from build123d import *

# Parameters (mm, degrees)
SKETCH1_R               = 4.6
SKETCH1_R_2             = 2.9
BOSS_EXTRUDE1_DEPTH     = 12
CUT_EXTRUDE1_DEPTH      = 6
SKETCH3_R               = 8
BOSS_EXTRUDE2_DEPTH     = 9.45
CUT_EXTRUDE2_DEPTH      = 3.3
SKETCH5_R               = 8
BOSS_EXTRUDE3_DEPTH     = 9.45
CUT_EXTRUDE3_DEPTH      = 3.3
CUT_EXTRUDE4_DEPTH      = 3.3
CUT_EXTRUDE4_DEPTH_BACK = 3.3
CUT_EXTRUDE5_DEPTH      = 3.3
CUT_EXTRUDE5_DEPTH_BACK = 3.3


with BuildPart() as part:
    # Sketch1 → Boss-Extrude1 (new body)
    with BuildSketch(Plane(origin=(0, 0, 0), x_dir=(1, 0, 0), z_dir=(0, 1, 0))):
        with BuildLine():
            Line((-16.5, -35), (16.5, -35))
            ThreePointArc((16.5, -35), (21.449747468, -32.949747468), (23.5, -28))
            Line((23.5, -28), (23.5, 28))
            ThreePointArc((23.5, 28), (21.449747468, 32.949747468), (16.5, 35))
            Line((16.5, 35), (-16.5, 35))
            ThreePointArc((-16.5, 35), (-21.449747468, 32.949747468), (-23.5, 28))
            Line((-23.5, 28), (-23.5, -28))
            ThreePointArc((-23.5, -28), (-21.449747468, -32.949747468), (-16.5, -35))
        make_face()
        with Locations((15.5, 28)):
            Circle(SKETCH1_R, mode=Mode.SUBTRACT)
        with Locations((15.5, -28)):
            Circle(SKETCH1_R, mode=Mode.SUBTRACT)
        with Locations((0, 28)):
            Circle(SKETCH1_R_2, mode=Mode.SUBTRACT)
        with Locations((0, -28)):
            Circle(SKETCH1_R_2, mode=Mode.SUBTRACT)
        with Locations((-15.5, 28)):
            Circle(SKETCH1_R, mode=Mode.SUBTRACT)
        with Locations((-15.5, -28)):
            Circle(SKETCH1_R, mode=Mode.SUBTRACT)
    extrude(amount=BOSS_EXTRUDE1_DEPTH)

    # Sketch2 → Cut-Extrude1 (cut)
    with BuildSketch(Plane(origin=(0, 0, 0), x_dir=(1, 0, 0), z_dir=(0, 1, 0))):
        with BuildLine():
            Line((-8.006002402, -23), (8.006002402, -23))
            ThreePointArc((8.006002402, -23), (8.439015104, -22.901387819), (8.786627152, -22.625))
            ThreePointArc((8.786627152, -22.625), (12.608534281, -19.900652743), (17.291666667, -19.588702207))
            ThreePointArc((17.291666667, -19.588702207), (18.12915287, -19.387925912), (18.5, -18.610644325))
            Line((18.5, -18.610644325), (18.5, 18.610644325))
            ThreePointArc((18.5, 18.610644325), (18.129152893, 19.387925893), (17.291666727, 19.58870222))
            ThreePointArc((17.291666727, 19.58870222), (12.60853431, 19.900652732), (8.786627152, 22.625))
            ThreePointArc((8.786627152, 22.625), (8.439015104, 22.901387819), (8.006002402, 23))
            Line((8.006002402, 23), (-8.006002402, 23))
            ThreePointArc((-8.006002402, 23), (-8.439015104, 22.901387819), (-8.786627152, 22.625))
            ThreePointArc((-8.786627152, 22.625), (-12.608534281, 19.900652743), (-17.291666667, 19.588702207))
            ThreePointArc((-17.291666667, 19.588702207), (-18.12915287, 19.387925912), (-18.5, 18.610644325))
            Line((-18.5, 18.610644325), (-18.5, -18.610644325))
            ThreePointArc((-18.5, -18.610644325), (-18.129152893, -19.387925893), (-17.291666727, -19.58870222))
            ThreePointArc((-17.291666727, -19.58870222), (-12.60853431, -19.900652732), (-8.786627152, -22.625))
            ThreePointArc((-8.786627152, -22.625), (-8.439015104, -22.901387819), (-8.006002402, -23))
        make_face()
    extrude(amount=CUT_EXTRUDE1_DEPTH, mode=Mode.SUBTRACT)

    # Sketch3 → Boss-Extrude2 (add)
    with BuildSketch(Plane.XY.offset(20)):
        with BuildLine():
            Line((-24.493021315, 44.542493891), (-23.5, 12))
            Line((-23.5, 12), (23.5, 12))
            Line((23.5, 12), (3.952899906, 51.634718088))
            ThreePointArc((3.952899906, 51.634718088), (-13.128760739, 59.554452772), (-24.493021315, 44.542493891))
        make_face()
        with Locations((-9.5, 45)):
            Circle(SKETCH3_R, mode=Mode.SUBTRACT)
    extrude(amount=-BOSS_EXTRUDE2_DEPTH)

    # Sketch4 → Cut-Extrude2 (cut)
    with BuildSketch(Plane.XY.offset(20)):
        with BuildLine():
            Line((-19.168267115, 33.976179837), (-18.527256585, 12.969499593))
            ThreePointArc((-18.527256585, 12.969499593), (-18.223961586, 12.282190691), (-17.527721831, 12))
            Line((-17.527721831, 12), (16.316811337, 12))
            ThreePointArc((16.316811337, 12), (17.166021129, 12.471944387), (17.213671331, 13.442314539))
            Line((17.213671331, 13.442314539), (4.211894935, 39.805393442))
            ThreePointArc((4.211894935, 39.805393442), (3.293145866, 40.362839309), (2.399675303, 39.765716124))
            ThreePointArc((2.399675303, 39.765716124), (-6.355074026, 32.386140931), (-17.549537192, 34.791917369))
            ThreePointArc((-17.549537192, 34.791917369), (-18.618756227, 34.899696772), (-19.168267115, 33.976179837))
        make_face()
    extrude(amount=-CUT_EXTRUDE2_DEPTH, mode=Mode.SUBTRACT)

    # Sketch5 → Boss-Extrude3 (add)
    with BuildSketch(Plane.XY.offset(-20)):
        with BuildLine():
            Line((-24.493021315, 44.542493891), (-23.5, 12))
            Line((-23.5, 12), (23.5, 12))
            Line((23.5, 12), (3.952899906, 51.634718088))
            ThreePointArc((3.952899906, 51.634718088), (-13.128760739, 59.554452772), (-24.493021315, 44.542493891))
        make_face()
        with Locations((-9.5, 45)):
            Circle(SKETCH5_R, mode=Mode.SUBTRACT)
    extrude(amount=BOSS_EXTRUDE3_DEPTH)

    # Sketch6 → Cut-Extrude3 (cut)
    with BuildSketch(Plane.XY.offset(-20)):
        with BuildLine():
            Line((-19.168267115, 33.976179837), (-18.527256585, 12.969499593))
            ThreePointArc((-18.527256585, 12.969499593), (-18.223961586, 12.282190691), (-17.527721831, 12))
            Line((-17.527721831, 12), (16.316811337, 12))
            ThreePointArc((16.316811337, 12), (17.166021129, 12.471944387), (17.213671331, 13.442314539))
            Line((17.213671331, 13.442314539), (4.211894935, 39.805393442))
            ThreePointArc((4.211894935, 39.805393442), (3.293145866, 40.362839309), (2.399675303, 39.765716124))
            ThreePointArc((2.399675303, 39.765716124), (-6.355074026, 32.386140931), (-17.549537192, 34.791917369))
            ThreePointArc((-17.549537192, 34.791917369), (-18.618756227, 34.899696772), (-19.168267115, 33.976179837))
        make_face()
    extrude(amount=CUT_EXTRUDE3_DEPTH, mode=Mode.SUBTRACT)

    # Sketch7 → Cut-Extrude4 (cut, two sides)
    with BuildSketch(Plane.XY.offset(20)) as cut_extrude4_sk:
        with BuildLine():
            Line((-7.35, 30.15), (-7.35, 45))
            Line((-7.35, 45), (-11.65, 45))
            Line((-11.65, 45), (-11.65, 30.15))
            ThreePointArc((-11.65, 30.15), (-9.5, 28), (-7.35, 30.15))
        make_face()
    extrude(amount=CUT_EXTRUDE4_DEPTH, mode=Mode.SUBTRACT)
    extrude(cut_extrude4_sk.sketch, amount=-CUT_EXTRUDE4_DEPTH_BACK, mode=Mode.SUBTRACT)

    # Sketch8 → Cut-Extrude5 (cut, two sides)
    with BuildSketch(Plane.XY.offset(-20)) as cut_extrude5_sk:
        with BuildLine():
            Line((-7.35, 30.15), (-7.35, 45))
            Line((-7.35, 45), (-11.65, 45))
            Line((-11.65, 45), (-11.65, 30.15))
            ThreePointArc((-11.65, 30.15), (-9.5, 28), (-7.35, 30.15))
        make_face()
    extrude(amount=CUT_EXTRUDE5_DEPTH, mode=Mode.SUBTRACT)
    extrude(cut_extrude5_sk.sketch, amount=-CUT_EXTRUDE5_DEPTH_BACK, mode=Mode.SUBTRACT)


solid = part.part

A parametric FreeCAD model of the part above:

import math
import FreeCAD as App
import Part
import Sketcher
Q = App.Units.Quantity

doc = App.newDocument("Part")
body = doc.addObject("PartDesign::Body", "Body")

# Sketch on XZ plane
sketch1 = body.newObject("Sketcher::SketchObject", "Sketch")
sketch1.AttachmentSupport = (doc.getObject("XZ_Plane"), [""])
sketch1.MapMode = "FlatFace"
sketch1.addGeometry([
    Part.LineSegment(App.Vector(-16.5, 35, 0), App.Vector(16.5, 35, 0)),  # 0
    Part.ArcOfCircle(Part.Circle(App.Vector(16.5, 28, 0), App.Vector(0, 0, 1), 7), math.radians(0), math.radians(90)),  # 1
    Part.LineSegment(App.Vector(23.5, 28, 0), App.Vector(23.5, -28, 0)),  # 2
    Part.ArcOfCircle(Part.Circle(App.Vector(16.5, -28, 0), App.Vector(0, 0, 1), 7), math.radians(-90), math.radians(0)),  # 3
    Part.LineSegment(App.Vector(16.5, -35, 0), App.Vector(-16.5, -35, 0)),  # 4
    Part.ArcOfCircle(Part.Circle(App.Vector(-16.5, -28, 0), App.Vector(0, 0, 1), 7), math.radians(-180), math.radians(-90)),  # 5
    Part.LineSegment(App.Vector(-23.5, -28, 0), App.Vector(-23.5, 28, 0)),  # 6
    Part.ArcOfCircle(Part.Circle(App.Vector(-16.5, 28, 0), App.Vector(0, 0, 1), 7), math.radians(90), math.radians(180)),  # 7
    Part.Circle(App.Vector(-15.5, 28, 0), App.Vector(0, 0, 1), 4.6),  # 8
    Part.Circle(App.Vector(0, 28, 0), App.Vector(0, 0, 1), 2.9),  # 9
    Part.Circle(App.Vector(15.5, 28, 0), App.Vector(0, 0, 1), 4.6),  # 10
    Part.Circle(App.Vector(-15.5, -28, 0), App.Vector(0, 0, 1), 4.6),  # 11
    Part.Circle(App.Vector(0, -28, 0), App.Vector(0, 0, 1), 2.9),  # 12
    Part.Circle(App.Vector(15.5, -28, 0), App.Vector(0, 0, 1), 4.6),  # 13
], False)
sketch1.addConstraint([
    Sketcher.Constraint("Tangent", 0, 2, 1, 2),
    Sketcher.Constraint("Tangent", 1, 1, 2, 1),
    Sketcher.Constraint("Tangent", 2, 2, 3, 2),
    Sketcher.Constraint("Tangent", 3, 1, 4, 1),
    Sketcher.Constraint("Tangent", 4, 2, 5, 2),
    Sketcher.Constraint("Tangent", 5, 1, 6, 1),
    Sketcher.Constraint("Tangent", 6, 2, 7, 2),
    Sketcher.Constraint("Tangent", 7, 1, 0, 1),
    Sketcher.Constraint("Horizontal", 0),
    Sketcher.Constraint("Vertical", 2),
    Sketcher.Constraint("Horizontal", 4),
    Sketcher.Constraint("Vertical", 6),
    Sketcher.Constraint("Equal", 1, 3),
    Sketcher.Constraint("Equal", 3, 5),
    Sketcher.Constraint("Equal", 5, 7),
    Sketcher.Constraint("Equal", 8, 10),
    Sketcher.Constraint("Equal", 10, 11),
    Sketcher.Constraint("Equal", 9, 12),
    Sketcher.Constraint("Equal", 11, 13),
    Sketcher.Constraint("Symmetric", 1, 3, 5, 3, -1, 1),
    Sketcher.Constraint("Symmetric", 10, 3, 11, 3, -1, 1),
    Sketcher.Constraint("Symmetric", 9, 3, 12, 3, -1, 1),
    Sketcher.Constraint("Symmetric", 8, 3, 13, 3, -1, 1),
    Sketcher.Constraint("Symmetric", 8, 3, 10, 3, -2),
    Sketcher.Constraint("PointOnObject", 9, 3, -2),
    Sketcher.Constraint("Horizontal", 7, 3, 8, 3),
    Sketcher.Constraint("Horizontal", 8, 3, 9, 3),
    Sketcher.Constraint("Radius", 1, Q("7 mm")),
    Sketcher.Constraint("Diameter", 8, Q("9.2 mm")),
    Sketcher.Constraint("Diameter", 9, Q("5.8 mm")),
    Sketcher.Constraint("DistanceX", 0, 1, 0, 2, Q("33 mm")),
    Sketcher.Constraint("DistanceY", 2, 2, 2, 1, Q("56 mm")),
    Sketcher.Constraint("DistanceX", 7, 3, 8, 3, Q("1 mm")),
])
pad1 = body.newObject("PartDesign::Pad", "Pad")
pad1.Profile = sketch1
pad1.Length = 12
pad1.Reversed = True

# Sketch on XZ plane
sketch2 = body.newObject("Sketcher::SketchObject", "Sketch001")
sketch2.AttachmentSupport = (doc.getObject("XZ_Plane"), [""])
sketch2.MapMode = "FlatFace"
sketch2.addGeometry([
    Part.LineSegment(App.Vector(-8, 23, 0), App.Vector(8, 23, 0)),  # 0
    Part.ArcOfCircle(Part.Circle(App.Vector(8, 22, 0), App.Vector(0, 0, 1), 1), math.radians(39), math.radians(90)),  # 1
    Part.ArcOfCircle(Part.Circle(App.Vector(15.5, 28, 0), App.Vector(0, 0, 1), 8.6), math.radians(-141), math.radians(-78)),  # 2
    Part.ArcOfCircle(Part.Circle(App.Vector(17.5, 18.6, 0), App.Vector(0, 0, 1), 1), math.radians(0), math.radians(102)),  # 3
    Part.LineSegment(App.Vector(18.5, 18.6, 0), App.Vector(18.5, -18.6, 0)),  # 4
    Part.ArcOfCircle(Part.Circle(App.Vector(17.5, -18.6, 0), App.Vector(0, 0, 1), 1), math.radians(-102), math.radians(0)),  # 5
    Part.ArcOfCircle(Part.Circle(App.Vector(15.5, -28, 0), App.Vector(0, 0, 1), 8.6), math.radians(78), math.radians(141)),  # 6
    Part.ArcOfCircle(Part.Circle(App.Vector(8, -22, 0), App.Vector(0, 0, 1), 1), math.radians(-90), math.radians(-39)),  # 7
    Part.LineSegment(App.Vector(8, -23, 0), App.Vector(-8, -23, 0)),  # 8
    Part.ArcOfCircle(Part.Circle(App.Vector(-8, -22, 0), App.Vector(0, 0, 1), 1), math.radians(-141), math.radians(-90)),  # 9
    Part.ArcOfCircle(Part.Circle(App.Vector(-15.5, -28, 0), App.Vector(0, 0, 1), 8.6), math.radians(39), math.radians(102)),  # 10
    Part.ArcOfCircle(Part.Circle(App.Vector(-17.5, -18.6, 0), App.Vector(0, 0, 1), 1), math.radians(180), math.radians(282)),  # 11
    Part.LineSegment(App.Vector(-18.5, -18.6, 0), App.Vector(-18.5, 18.6, 0)),  # 12
    Part.ArcOfCircle(Part.Circle(App.Vector(-17.5, 18.6, 0), App.Vector(0, 0, 1), 1), math.radians(78), math.radians(180)),  # 13
    Part.ArcOfCircle(Part.Circle(App.Vector(-15.5, 28, 0), App.Vector(0, 0, 1), 8.6), math.radians(-102), math.radians(-39)),  # 14
    Part.ArcOfCircle(Part.Circle(App.Vector(-8, 22, 0), App.Vector(0, 0, 1), 1), math.radians(90), math.radians(141)),  # 15
], False)
sketch2.addConstraint([
    Sketcher.Constraint("Tangent", 0, 2, 1, 2),
    Sketcher.Constraint("Tangent", 1, 1, 2, 1),
    Sketcher.Constraint("Tangent", 2, 2, 3, 2),
    Sketcher.Constraint("Tangent", 3, 1, 4, 1),
    Sketcher.Constraint("Tangent", 4, 2, 5, 2),
    Sketcher.Constraint("Tangent", 5, 1, 6, 1),
    Sketcher.Constraint("Tangent", 6, 2, 7, 2),
    Sketcher.Constraint("Tangent", 7, 1, 8, 1),
    Sketcher.Constraint("Tangent", 8, 2, 9, 2),
    Sketcher.Constraint("Tangent", 9, 1, 10, 1),
    Sketcher.Constraint("Tangent", 10, 2, 11, 2),
    Sketcher.Constraint("Tangent", 11, 1, 12, 1),
    Sketcher.Constraint("Tangent", 12, 2, 13, 2),
    Sketcher.Constraint("Tangent", 13, 1, 14, 1),
    Sketcher.Constraint("Tangent", 14, 2, 15, 2),
    Sketcher.Constraint("Tangent", 15, 1, 0, 1),
    Sketcher.Constraint("Horizontal", 0),
    Sketcher.Constraint("Vertical", 4),
    Sketcher.Constraint("Horizontal", 8),
    Sketcher.Constraint("Vertical", 12),
    Sketcher.Constraint("Equal", 1, 3),
    Sketcher.Constraint("Equal", 3, 5),
    Sketcher.Constraint("Equal", 2, 6),
    Sketcher.Constraint("Equal", 5, 7),
    Sketcher.Constraint("Equal", 7, 9),
    Sketcher.Constraint("Equal", 6, 10),
    Sketcher.Constraint("Equal", 9, 11),
    Sketcher.Constraint("Equal", 11, 13),
    Sketcher.Constraint("Equal", 10, 14),
    Sketcher.Constraint("Equal", 13, 15),
    Sketcher.Constraint("Symmetric", 1, 3, 9, 3, -1, 1),
    Sketcher.Constraint("Symmetric", 3, 3, 11, 3, -1, 1),
    Sketcher.Constraint("Symmetric", 6, 3, 14, 3, -1, 1),
    Sketcher.Constraint("Symmetric", 6, 3, 10, 3, -2),
    Sketcher.Constraint("Radius", 1, Q("1 mm")),
    Sketcher.Constraint("Radius", 2, Q("8.6 mm")),
    Sketcher.Constraint("DistanceY", -1, 1, 1, 3, Q("22 mm")),
    Sketcher.Constraint("DistanceY", -1, 1, 2, 3, Q("28 mm")),
    Sketcher.Constraint("DistanceX", 2, 3, 3, 3, Q("2 mm")),
    Sketcher.Constraint("DistanceX", 10, 3, 6, 3, Q("31 mm")),
])
pocket1 = body.newObject("PartDesign::Pocket", "Pocket")
pocket1.Profile = sketch2
pocket1.Length = 6

# Sketch on XY plane
sketch3 = body.newObject("Sketcher::SketchObject", "Sketch002")
sketch3.AttachmentSupport = (doc.getObject("XY_Plane"), [""])
sketch3.MapMode = "FlatFace"
sketch3.AttachmentOffset = App.Placement(App.Vector(0, 0, 20), App.Rotation())
sketch3.addGeometry([
    Part.LineSegment(App.Vector(-24, 45, 0), App.Vector(-24, 12, 0)),  # 0
    Part.LineSegment(App.Vector(-24, 12, 0), App.Vector(24, 12, 0)),  # 1
    Part.LineSegment(App.Vector(24, 12, 0), App.Vector(4, 52, 0)),  # 2
    Part.ArcOfCircle(Part.Circle(App.Vector(-10, 45, 0), App.Vector(0, 0, 1), 15), math.radians(26), math.radians(182)),  # 3
    Part.Circle(App.Vector(-10, 45, 0), App.Vector(0, 0, 1), 8),  # 4
], False)
sketch3.addConstraint([
    Sketcher.Constraint("Coincident", 0, 2, 1, 1),
    Sketcher.Constraint("Coincident", 1, 2, 2, 1),
    Sketcher.Constraint("Tangent", 2, 2, 3, 1),
    Sketcher.Constraint("Tangent", 3, 2, 0, 1),
    Sketcher.Constraint("Horizontal", 1),
    Sketcher.Constraint("Coincident", 4, 3, 3, 3),
    Sketcher.Constraint("Diameter", 4, Q("16 mm")),
    Sketcher.Constraint("Radius", 3, Q("15 mm")),
    Sketcher.Constraint("DistanceX", 1, 1, 1, 2, Q("47 mm")),
    Sketcher.Constraint("DistanceY", -1, 1, 3, 3, Q("45 mm")),
    Sketcher.Constraint("DistanceY", -1, 1, 0, 2, Q("12 mm")),
    Sketcher.Constraint("DistanceX", 0, 2, 3, 3, Q("14 mm")),
    Sketcher.Constraint("DistanceX", 3, 3, -1, 1, Q("9.5 mm")),
])
pad2 = body.newObject("PartDesign::Pad", "Pad001")
pad2.Profile = sketch3
pad2.Length = 9.45
pad2.Reversed = True

# Sketch on XY plane
sketch4 = body.newObject("Sketcher::SketchObject", "Sketch003")
sketch4.AttachmentSupport = (doc.getObject("XY_Plane"), [""])
sketch4.MapMode = "FlatFace"
sketch4.AttachmentOffset = App.Placement(App.Vector(0, 0, 20), App.Rotation())
sketch4.addGeometry([
    Part.LineSegment(App.Vector(-19.2, 34, 0), App.Vector(-18.5, 13, 0)),  # 0
    Part.ArcOfCircle(Part.Circle(App.Vector(-17.5, 13, 0), App.Vector(0, 0, 1), 1), math.radians(-178), math.radians(-90)),  # 1
    Part.LineSegment(App.Vector(-17.5, 12, 0), App.Vector(16.3, 12, 0)),  # 2
    Part.ArcOfCircle(Part.Circle(App.Vector(16.3, 13, 0), App.Vector(0, 0, 1), 1), math.radians(-90), math.radians(26)),  # 3
    Part.LineSegment(App.Vector(17.2, 13.4, 0), App.Vector(4.2, 39.8, 0)),  # 4
    Part.ArcOfCircle(Part.Circle(App.Vector(3.3, 39.4, 0), App.Vector(0, 0, 1), 1), math.radians(26), math.radians(156)),  # 5
    Part.ArcOfCircle(Part.Circle(App.Vector(-9.5, 45, 0), App.Vector(0, 0, 1), 13), math.radians(-128), math.radians(-24)),  # 6
    Part.ArcOfCircle(Part.Circle(App.Vector(-18.2, 34, 0), App.Vector(0, 0, 1), 1), math.radians(52), math.radians(182)),  # 7
], False)
sketch4.addConstraint([
    Sketcher.Constraint("Tangent", 0, 2, 1, 1),
    Sketcher.Constraint("Tangent", 1, 2, 2, 1),
    Sketcher.Constraint("Tangent", 2, 2, 3, 1),
    Sketcher.Constraint("Tangent", 3, 2, 4, 1),
    Sketcher.Constraint("Tangent", 4, 2, 5, 1),
    Sketcher.Constraint("Tangent", 5, 2, 6, 2),
    Sketcher.Constraint("Tangent", 6, 1, 7, 1),
    Sketcher.Constraint("Tangent", 7, 2, 0, 1),
    Sketcher.Constraint("Horizontal", 2),
    Sketcher.Constraint("Equal", 1, 3),
    Sketcher.Constraint("Equal", 3, 5),
    Sketcher.Constraint("Equal", 5, 7),
    Sketcher.Constraint("Radius", 1, Q("1 mm")),
    Sketcher.Constraint("Radius", 6, Q("13 mm")),
    Sketcher.Constraint("DistanceY", -1, 1, 1, 3, Q("13 mm")),
    Sketcher.Constraint("DistanceY", -1, 1, 6, 3, Q("45 mm")),
    Sketcher.Constraint("DistanceX", 6, 3, -1, 1, Q("9.5 mm")),
    Sketcher.Constraint("DistanceY", -1, 1, 0, 2, Q("12.9695 mm")),
    Sketcher.Constraint("DistanceY", 7, 3, 5, 3, Q("5.356399 mm")),
    Sketcher.Constraint("Distance", 0, Q("21.016458 mm")),
    Sketcher.Constraint("DistanceX", 2, 1, 2, 2, Q("33.844533 mm")),
])
pocket2 = body.newObject("PartDesign::Pocket", "Pocket001")
pocket2.Profile = sketch4
pocket2.Length = 3.3

# Sketch on XY plane
sketch5 = body.newObject("Sketcher::SketchObject", "Sketch004")
sketch5.AttachmentSupport = (doc.getObject("XY_Plane"), [""])
sketch5.MapMode = "FlatFace"
sketch5.AttachmentOffset = App.Placement(App.Vector(0, 0, -20), App.Rotation())
sketch5.addGeometry([
    Part.LineSegment(App.Vector(-24, 45, 0), App.Vector(-24, 12, 0)),  # 0
    Part.LineSegment(App.Vector(-24, 12, 0), App.Vector(24, 12, 0)),  # 1
    Part.LineSegment(App.Vector(24, 12, 0), App.Vector(4, 52, 0)),  # 2
    Part.ArcOfCircle(Part.Circle(App.Vector(-10, 45, 0), App.Vector(0, 0, 1), 15), math.radians(26), math.radians(182)),  # 3
    Part.Circle(App.Vector(-10, 45, 0), App.Vector(0, 0, 1), 8),  # 4
], False)
sketch5.addConstraint([
    Sketcher.Constraint("Coincident", 0, 2, 1, 1),
    Sketcher.Constraint("Coincident", 1, 2, 2, 1),
    Sketcher.Constraint("Tangent", 2, 2, 3, 1),
    Sketcher.Constraint("Tangent", 3, 2, 0, 1),
    Sketcher.Constraint("Horizontal", 1),
    Sketcher.Constraint("Coincident", 4, 3, 3, 3),
    Sketcher.Constraint("Diameter", 4, Q("16 mm")),
    Sketcher.Constraint("Radius", 3, Q("15 mm")),
    Sketcher.Constraint("DistanceX", 1, 1, 1, 2, Q("47 mm")),
    Sketcher.Constraint("DistanceY", -1, 1, 3, 3, Q("45 mm")),
    Sketcher.Constraint("DistanceY", -1, 1, 0, 2, Q("12 mm")),
    Sketcher.Constraint("DistanceX", 0, 2, 3, 3, Q("14 mm")),
    Sketcher.Constraint("DistanceX", 3, 3, -1, 1, Q("9.5 mm")),
])
pad3 = body.newObject("PartDesign::Pad", "Pad002")
pad3.Profile = sketch5
pad3.Length = 9.45

# Sketch on XY plane
sketch6 = body.newObject("Sketcher::SketchObject", "Sketch005")
sketch6.AttachmentSupport = (doc.getObject("XY_Plane"), [""])
sketch6.MapMode = "FlatFace"
sketch6.AttachmentOffset = App.Placement(App.Vector(0, 0, -20), App.Rotation())
sketch6.addGeometry([
    Part.LineSegment(App.Vector(-19.2, 34, 0), App.Vector(-18.5, 13, 0)),  # 0
    Part.ArcOfCircle(Part.Circle(App.Vector(-17.5, 13, 0), App.Vector(0, 0, 1), 1), math.radians(-178), math.radians(-90)),  # 1
    Part.LineSegment(App.Vector(-17.5, 12, 0), App.Vector(16.3, 12, 0)),  # 2
    Part.ArcOfCircle(Part.Circle(App.Vector(16.3, 13, 0), App.Vector(0, 0, 1), 1), math.radians(-90), math.radians(26)),  # 3
    Part.LineSegment(App.Vector(17.2, 13.4, 0), App.Vector(4.2, 39.8, 0)),  # 4
    Part.ArcOfCircle(Part.Circle(App.Vector(3.3, 39.4, 0), App.Vector(0, 0, 1), 1), math.radians(26), math.radians(156)),  # 5
    Part.ArcOfCircle(Part.Circle(App.Vector(-9.5, 45, 0), App.Vector(0, 0, 1), 13), math.radians(-128), math.radians(-24)),  # 6
    Part.ArcOfCircle(Part.Circle(App.Vector(-18.2, 34, 0), App.Vector(0, 0, 1), 1), math.radians(52), math.radians(182)),  # 7
], False)
sketch6.addConstraint([
    Sketcher.Constraint("Tangent", 0, 2, 1, 1),
    Sketcher.Constraint("Tangent", 1, 2, 2, 1),
    Sketcher.Constraint("Tangent", 2, 2, 3, 1),
    Sketcher.Constraint("Tangent", 3, 2, 4, 1),
    Sketcher.Constraint("Tangent", 4, 2, 5, 1),
    Sketcher.Constraint("Tangent", 5, 2, 6, 2),
    Sketcher.Constraint("Tangent", 6, 1, 7, 1),
    Sketcher.Constraint("Tangent", 7, 2, 0, 1),
    Sketcher.Constraint("Horizontal", 2),
    Sketcher.Constraint("Equal", 1, 3),
    Sketcher.Constraint("Equal", 3, 5),
    Sketcher.Constraint("Equal", 5, 7),
    Sketcher.Constraint("Radius", 1, Q("1 mm")),
    Sketcher.Constraint("Radius", 6, Q("13 mm")),
    Sketcher.Constraint("DistanceY", -1, 1, 1, 3, Q("13 mm")),
    Sketcher.Constraint("DistanceY", -1, 1, 6, 3, Q("45 mm")),
    Sketcher.Constraint("DistanceX", 6, 3, -1, 1, Q("9.5 mm")),
    Sketcher.Constraint("DistanceY", -1, 1, 0, 2, Q("12.9695 mm")),
    Sketcher.Constraint("DistanceY", 7, 3, 5, 3, Q("5.356399 mm")),
    Sketcher.Constraint("Distance", 0, Q("21.016458 mm")),
    Sketcher.Constraint("DistanceX", 2, 1, 2, 2, Q("33.844533 mm")),
])
pocket3 = body.newObject("PartDesign::Pocket", "Pocket002")
pocket3.Profile = sketch6
pocket3.Length = 3.3
pocket3.Reversed = True

# Sketch on XY plane
sketch7 = body.newObject("Sketcher::SketchObject", "Sketch006")
sketch7.AttachmentSupport = (doc.getObject("XY_Plane"), [""])
sketch7.MapMode = "FlatFace"
sketch7.AttachmentOffset = App.Placement(App.Vector(0, 0, 20), App.Rotation())
sketch7.addGeometry([
    Part.LineSegment(App.Vector(-7.3, 30.1, 0), App.Vector(-7.3, 45, 0)),
    Part.LineSegment(App.Vector(-7.3, 45, 0), App.Vector(-11.7, 45, 0)),
    Part.LineSegment(App.Vector(-11.7, 45, 0), App.Vector(-11.7, 30.1, 0)),
    Part.ArcOfCircle(Part.Circle(App.Vector(-9.5, 30.1, 0), App.Vector(0, 0, 1), 2.1), math.radians(180), math.radians(360)),
], False)
sketch7.addConstraint([
    Sketcher.Constraint("Coincident", 0, 2, 1, 1),
    Sketcher.Constraint("Coincident", 1, 2, 2, 1),
    Sketcher.Constraint("Tangent", 2, 2, 3, 1),
    Sketcher.Constraint("Tangent", 3, 2, 0, 1),
    Sketcher.Constraint("Vertical", 0),
    Sketcher.Constraint("Horizontal", 1),
    Sketcher.Constraint("Vertical", 2),
    Sketcher.Constraint("Radius", 3, Q("2.15 mm")),
    Sketcher.Constraint("DistanceY", -1, 1, 0, 2, Q("45 mm")),
    Sketcher.Constraint("DistanceY", 0, 1, 0, 2, Q("14.85 mm")),
    Sketcher.Constraint("DistanceX", 3, 3, -1, 1, Q("9.5 mm")),
])
pocket4 = body.newObject("PartDesign::Pocket", "Pocket003")
pocket4.Profile = sketch7
pocket4.Type = "TwoLengths"
pocket4.Length = 3.3
pocket4.Length2 = 3.3
pocket4.Reversed = True

# Sketch on XY plane
sketch8 = body.newObject("Sketcher::SketchObject", "Sketch007")
sketch8.AttachmentSupport = (doc.getObject("XY_Plane"), [""])
sketch8.MapMode = "FlatFace"
sketch8.AttachmentOffset = App.Placement(App.Vector(0, 0, -20), App.Rotation())
sketch8.addGeometry([
    Part.LineSegment(App.Vector(-7.3, 30.1, 0), App.Vector(-7.3, 45, 0)),
    Part.LineSegment(App.Vector(-7.3, 45, 0), App.Vector(-11.7, 45, 0)),
    Part.LineSegment(App.Vector(-11.7, 45, 0), App.Vector(-11.7, 30.1, 0)),
    Part.ArcOfCircle(Part.Circle(App.Vector(-9.5, 30.1, 0), App.Vector(0, 0, 1), 2.1), math.radians(180), math.radians(360)),
], False)
sketch8.addConstraint([
    Sketcher.Constraint("Coincident", 0, 2, 1, 1),
    Sketcher.Constraint("Coincident", 1, 2, 2, 1),
    Sketcher.Constraint("Tangent", 2, 2, 3, 1),
    Sketcher.Constraint("Tangent", 3, 2, 0, 1),
    Sketcher.Constraint("Vertical", 0),
    Sketcher.Constraint("Horizontal", 1),
    Sketcher.Constraint("Vertical", 2),
    Sketcher.Constraint("Radius", 3, Q("2.15 mm")),
    Sketcher.Constraint("DistanceY", -1, 1, 0, 2, Q("45 mm")),
    Sketcher.Constraint("DistanceY", 0, 1, 0, 2, Q("14.85 mm")),
    Sketcher.Constraint("DistanceX", 3, 3, -1, 1, Q("9.5 mm")),
])
pocket5 = body.newObject("PartDesign::Pocket", "Pocket004")
pocket5.Profile = sketch8
pocket5.Type = "TwoLengths"
pocket5.Length = 3.3
pocket5.Length2 = 3.3
pocket5.Reversed = True

doc.recompute()
